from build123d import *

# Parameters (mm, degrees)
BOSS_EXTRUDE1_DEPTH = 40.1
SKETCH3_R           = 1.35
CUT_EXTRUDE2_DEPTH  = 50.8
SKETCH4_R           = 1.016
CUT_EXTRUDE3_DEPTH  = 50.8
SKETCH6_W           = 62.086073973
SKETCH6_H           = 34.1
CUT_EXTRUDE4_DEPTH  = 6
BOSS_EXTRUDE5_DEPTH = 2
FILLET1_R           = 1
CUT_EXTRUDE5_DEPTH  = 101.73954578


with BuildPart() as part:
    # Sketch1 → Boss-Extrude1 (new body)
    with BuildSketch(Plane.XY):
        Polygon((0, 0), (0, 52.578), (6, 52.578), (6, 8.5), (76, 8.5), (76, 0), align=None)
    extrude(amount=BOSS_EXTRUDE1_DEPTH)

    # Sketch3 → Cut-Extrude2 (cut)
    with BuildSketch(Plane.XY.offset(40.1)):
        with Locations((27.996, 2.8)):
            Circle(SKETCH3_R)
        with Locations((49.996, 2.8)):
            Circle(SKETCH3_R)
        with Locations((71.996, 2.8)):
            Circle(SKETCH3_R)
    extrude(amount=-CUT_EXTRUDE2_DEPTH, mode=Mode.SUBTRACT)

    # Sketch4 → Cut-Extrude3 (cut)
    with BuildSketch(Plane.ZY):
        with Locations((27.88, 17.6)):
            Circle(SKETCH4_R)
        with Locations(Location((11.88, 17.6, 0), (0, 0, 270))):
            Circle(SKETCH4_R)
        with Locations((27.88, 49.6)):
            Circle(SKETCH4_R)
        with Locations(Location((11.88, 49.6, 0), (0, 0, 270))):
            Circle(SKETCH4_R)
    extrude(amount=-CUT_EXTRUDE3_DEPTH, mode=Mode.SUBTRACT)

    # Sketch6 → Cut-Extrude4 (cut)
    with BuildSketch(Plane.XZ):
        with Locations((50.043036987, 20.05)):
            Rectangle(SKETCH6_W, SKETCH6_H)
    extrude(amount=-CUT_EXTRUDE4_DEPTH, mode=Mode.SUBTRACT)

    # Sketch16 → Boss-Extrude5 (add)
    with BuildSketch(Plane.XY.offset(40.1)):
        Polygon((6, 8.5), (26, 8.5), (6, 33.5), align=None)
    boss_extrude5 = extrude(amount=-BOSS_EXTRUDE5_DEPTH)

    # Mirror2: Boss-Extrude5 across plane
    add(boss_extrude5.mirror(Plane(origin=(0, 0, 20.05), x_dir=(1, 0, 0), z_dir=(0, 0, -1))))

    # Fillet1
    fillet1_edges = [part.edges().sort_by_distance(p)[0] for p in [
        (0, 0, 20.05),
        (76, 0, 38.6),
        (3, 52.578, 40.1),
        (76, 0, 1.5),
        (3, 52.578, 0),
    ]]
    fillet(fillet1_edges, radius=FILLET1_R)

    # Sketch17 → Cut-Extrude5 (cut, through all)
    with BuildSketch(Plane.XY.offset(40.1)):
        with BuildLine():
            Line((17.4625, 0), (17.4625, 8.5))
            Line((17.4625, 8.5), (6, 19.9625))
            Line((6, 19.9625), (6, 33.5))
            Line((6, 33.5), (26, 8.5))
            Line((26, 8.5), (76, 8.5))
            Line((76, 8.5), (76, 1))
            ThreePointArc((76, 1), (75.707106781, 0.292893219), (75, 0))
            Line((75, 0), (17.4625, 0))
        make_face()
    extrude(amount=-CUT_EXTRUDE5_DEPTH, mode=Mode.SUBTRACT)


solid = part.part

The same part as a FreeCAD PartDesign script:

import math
import FreeCAD as App
import Part
import Sketcher
Q = App.Units.Quantity


def edges_at(feature, points):
    """Names of the edges that pass closest to the given points."""
    edges = feature.Shape.Edges
    near = lambda p: min(range(len(edges)), key=lambda i: edges[i].distToShape(Part.Vertex(*p))[0])
    return sorted({f"Edge{near(p) + 1}" for p in points})


def add_polygon(sketch, points):
    """Adds a closed chain of lines whose ends are joined by coincident constraints."""
    first, n = sketch.GeometryCount, len(points)
    for a, b in zip(points, points[1:] + points[:1]):
        sketch.addGeometry(Part.LineSegment(App.Vector(*a, 0), App.Vector(*b, 0)), False)
    for i in range(n):
        sketch.addConstraint(Sketcher.Constraint("Coincident", first + i, 2, first + (i + 1) % n, 1))

doc = App.newDocument("Part")
body = doc.addObject("PartDesign::Body", "Body")

sketch1 = body.newObject("Sketcher::SketchObject", "Sketch")
sketch1.AttachmentSupport = (doc.getObject("XY_Plane"), [""])
sketch1.MapMode = "FlatFace"
add_polygon(sketch1, [(0, 53), (0, 0), (76, 0), (76, 8), (6, 8), (6, 53)])
sketch1.addConstraint(Sketcher.Constraint("Vertical", 0))
sketch1.addConstraint(Sketcher.Constraint("Horizontal", 1))
sketch1.addConstraint(Sketcher.Constraint("Vertical", 2))
sketch1.addConstraint(Sketcher.Constraint("Horizontal", 3))
sketch1.addConstraint(Sketcher.Constraint("Vertical", 4))
sketch1.addConstraint(Sketcher.Constraint("Horizontal", 5))
sketch1.addConstraint(Sketcher.Constraint("Coincident", 0, 2, -1, 1))
sketch1.addConstraint(Sketcher.Constraint("DistanceX", 1, 1, 1, 2, 76.0))
sketch1.addConstraint(Sketcher.Constraint("DistanceX", 3, 2, 3, 1, 70.0))
sketch1.addConstraint(Sketcher.Constraint("DistanceY", 2, 1, 2, 2, 8.5))
sketch1.addConstraint(Sketcher.Constraint("DistanceY", 0, 2, 0, 1, 52.578))
pad1 = body.newObject("PartDesign::Pad", "Pad")
pad1.Profile = sketch1
pad1.Length = 40.1

sketch2 = body.newObject("Sketcher::SketchObject", "Sketch001")
sketch2.AttachmentSupport = (doc.getObject("XY_Plane"), [""])
sketch2.MapMode = "FlatFace"
sketch2.AttachmentOffset = App.Placement(App.Vector(0, 0, 40.1), App.Rotation())
sketch2.addGeometry(Part.Circle(App.Vector(28, 2.8, 0), App.Vector(0, 0, 1), 1.4), False)
sketch2.addGeometry(Part.Circle(App.Vector(50, 2.8, 0), App.Vector(0, 0, 1), 1.4), False)
sketch2.addGeometry(Part.Circle(App.Vector(72, 2.8, 0), App.Vector(0, 0, 1), 1.4), False)
sketch2.addConstraint(Sketcher.Constraint("Equal", 0, 1))
sketch2.addConstraint(Sketcher.Constraint("Equal", 1, 2))
sketch2.addConstraint(Sketcher.Constraint("Horizontal", 0, 3, 1, 3))
sketch2.addConstraint(Sketcher.Constraint("Horizontal", 1, 3, 2, 3))
sketch2.addConstraint(Sketcher.Constraint("Diameter", 0, 2.7))
sketch2.addConstraint(Sketcher.Constraint("DistanceX", 0, 3, 1, 3, 22.0))
sketch2.addConstraint(Sketcher.Constraint("DistanceX", 1, 3, 2, 3, 22.0))
sketch2.addConstraint(Sketcher.Constraint("DistanceY", -1, 1, 0, 3, 2.8))
sketch2.addConstraint(Sketcher.Constraint("DistanceX", -1, 1, 0, 3, 27.996))
pocket1 = body.newObject("PartDesign::Pocket", "Pocket")
pocket1.Profile = sketch2
pocket1.Length = 50.8

sketch3 = body.newObject("Sketcher::SketchObject", "Sketch002")
sketch3.AttachmentSupport = (doc.getObject("YZ_Plane"), [""])
sketch3.MapMode = "FlatFace"
sketch3.addGeometry(Part.Circle(App.Vector(17.6, 27.9, 0), App.Vector(0, 0, 1), 1), False)
sketch3.addGeometry(Part.Circle(App.Vector(17.6, 11.9, 0), App.Vector(0, 0, 1), 1), False)
sketch3.addGeometry(Part.Circle(App.Vector(49.6, 27.9, 0), App.Vector(0, 0, 1), 1), False)
sketch3.addGeometry(Part.Circle(App.Vector(49.6, 11.9, 0), App.Vector(0, 0, 1), 1), False)
sketch3.addConstraint(Sketcher.Constraint("Equal", 0, 1))
sketch3.addConstraint(Sketcher.Constraint("Equal", 1, 2))
sketch3.addConstraint(Sketcher.Constraint("Equal", 2, 3))
sketch3.addConstraint(Sketcher.Constraint("Horizontal", 0, 3, 2, 3))
sketch3.addConstraint(Sketcher.Constraint("Horizontal", 1, 3, 3, 3))
sketch3.addConstraint(Sketcher.Constraint("Vertical", 0, 3, 1, 3))
sketch3.addConstraint(Sketcher.Constraint("Vertical", 2, 3, 3, 3))
sketch3.addConstraint(Sketcher.Constraint("Diameter", 0, 2.032))
sketch3.addConstraint(Sketcher.Constraint("DistanceY", 1, 3, 0, 3, 16.0))
sketch3.addConstraint(Sketcher.Constraint("DistanceX", 0, 3, 2, 3, 32.0))
sketch3.addConstraint(Sketcher.Constraint("DistanceX", -1, 1, 0, 3, 17.6))
sketch3.addConstraint(Sketcher.Constraint("DistanceY", -1, 1, 0, 3, 27.88))
pocket2 = body.newObject("PartDesign::Pocket", "Pocket001")
pocket2.Profile = sketch3
pocket2.Length = 50.8
pocket2.Reversed = True

sketch4 = body.newObject("Sketcher::SketchObject", "Sketch003")
sketch4.AttachmentSupport = (doc.getObject("XZ_Plane"), [""])
sketch4.MapMode = "FlatFace"
add_polygon(sketch4, [(19, 37), (19, 3), (81, 3), (81, 37)])
sketch4.addConstraint(Sketcher.Constraint("Vertical", 0))
sketch4.addConstraint(Sketcher.Constraint("Horizontal", 1))
sketch4.addConstraint(Sketcher.Constraint("Vertical", 2))
sketch4.addConstraint(Sketcher.Constraint("Horizontal", 3))
sketch4.addConstraint(Sketcher.Constraint("DistanceY", 0, 2, 0, 1, 34.1))
sketch4.addConstraint(Sketcher.Constraint("DistanceX", -1, 1, 0, 2, 19.0))
sketch4.addConstraint(Sketcher.Constraint("DistanceY", -1, 1, 0, 2, 3.0))
sketch4.addConstraint(Sketcher.Constraint("DistanceX", 1, 1, 1, 2, 62.086074))
pocket3 = body.newObject("PartDesign::Pocket", "Pocket002")
pocket3.Profile = sketch4
pocket3.Length = 6

sketch5 = body.newObject("Sketcher::SketchObject", "Sketch004")
sketch5.AttachmentSupport = (doc.getObject("XY_Plane"), [""])
sketch5.MapMode = "FlatFace"
sketch5.AttachmentOffset = App.Placement(App.Vector(0, 0, 40.1), App.Rotation())
add_polygon(sketch5, [(6, 8), (26, 8), (6, 34)])
sketch5.addConstraint(Sketcher.Constraint("Horizontal", 0))
sketch5.addConstraint(Sketcher.Constraint("Vertical", 2))
sketch5.addConstraint(Sketcher.Constraint("DistanceX", 0, 1, 0, 2, 20.0))
sketch5.addConstraint(Sketcher.Constraint("DistanceY", 2, 2, 2, 1, 25.0))
sketch5.addConstraint(Sketcher.Constraint("DistanceX", -1, 1, 0, 2, 26.0))
sketch5.addConstraint(Sketcher.Constraint("DistanceY", -1, 1, 0, 2, 8.5))
pad2 = body.newObject("PartDesign::Pad", "Pad001")
pad2.Profile = sketch5
pad2.Length = 2
pad2.Reversed = True
doc.recompute()

datumplane = body.newObject("PartDesign::Plane", "DatumPlane")
datumplane.AttachmentSupport = (doc.getObject("XY_Plane"), [""])
datumplane.MapMode = "FlatFace"
datumplane.AttachmentOffset = App.Placement(App.Vector(0, 0, 20.05), App.Rotation())
mirrored = body.newObject("PartDesign::Mirrored", "Mirrored")
mirrored.Originals = [pad2]
mirrored.MirrorPlane = (datumplane, [""])
body.Tip = mirrored
doc.recompute()

fillet = body.newObject("PartDesign::Fillet", "Fillet")
fillet.Base = (mirrored, edges_at(mirrored, [
    (0, 0, 20.05),
    (76, 0, 38.6),
    (3, 52.578, 40.1),
    (76, 0, 1.5),
    (3, 52.578, 0),
]))
fillet.Radius = 1

sketch6 = body.newObject("Sketcher::SketchObject", "Sketch005")
sketch6.AttachmentSupport = (doc.getObject("XY_Plane"), [""])
sketch6.MapMode = "FlatFace"
sketch6.AttachmentOffset = App.Placement(App.Vector(0, 0, 40.1), App.Rotation())
sketch6.addGeometry(Part.LineSegment(App.Vector(17.5, 8.5, 0), App.Vector(17.5, 0, 0)), False)
sketch6.addGeometry(Part.LineSegment(App.Vector(17.5, 0, 0), App.Vector(75, 0, 0)), False)
sketch6.addGeometry(Part.ArcOfCircle(Part.Circle(App.Vector(75, 1, 0), App.Vector(0, 0, 1), 1), math.radians(-90), math.radians(0)), False)
sketch6.addGeometry(Part.LineSegment(App.Vector(76, 1, 0), App.Vector(76, 8.5, 0)), False)
sketch6.addGeometry(Part.LineSegment(App.Vector(76, 8.5, 0), App.Vector(26, 8.5, 0)), False)
sketch6.addGeometry(Part.LineSegment(App.Vector(26, 8.5, 0), App.Vector(6, 33.5, 0)), False)
sketch6.addGeometry(Part.LineSegment(App.Vector(6, 33.5, 0), App.Vector(6, 20, 0)), False)
sketch6.addGeometry(Part.LineSegment(App.Vector(6, 20, 0), App.Vector(17.5, 8.5, 0)), False)
sketch6.addConstraint(Sketcher.Constraint("Coincident", 0, 2, 1, 1))
sketch6.addConstraint(Sketcher.Constraint("Tangent", 1, 2, 2, 1))
sketch6.addConstraint(Sketcher.Constraint("Tangent", 2, 2, 3, 1))
sketch6.addConstraint(Sketcher.Constraint("Coincident", 3, 2, 4, 1))
sketch6.addConstraint(Sketcher.Constraint("Coincident", 4, 2, 5, 1))
sketch6.addConstraint(Sketcher.Constraint("Coincident", 5, 2, 6, 1))
sketch6.addConstraint(Sketcher.Constraint("Coincident", 6, 2, 7, 1))
sketch6.addConstraint(Sketcher.Constraint("Coincident", 7, 2, 0, 1))
sketch6.addConstraint(Sketcher.Constraint("Vertical", 0))
sketch6.addConstraint(Sketcher.Constraint("Horizontal", 1))
sketch6.addConstraint(Sketcher.Constraint("Vertical", 3))
sketch6.addConstraint(Sketcher.Constraint("Horizontal", 4))
sketch6.addConstraint(Sketcher.Constraint("Vertical", 6))
sketch6.addConstraint(Sketcher.Constraint("PointOnObject", 0, 2, -1))
sketch6.addConstraint(Sketcher.Constraint("Horizontal", 4, 2, 7, 2))
sketch6.addConstraint(Sketcher.Constraint("Radius", 2, 1.0))
sketch6.addConstraint(Sketcher.Constraint("DistanceX", 4, 2, 4, 1, 50.0))
sketch6.addConstraint(Sketcher.Constraint("Angle", 7, Q("-45 deg")))
sketch6.addConstraint(Sketcher.Constraint("DistanceY", 0, 2, 0, 1, 8.5))
sketch6.addConstraint(Sketcher.Constraint("DistanceX", -1, 1, 2, 3, 75.0))
sketch6.addConstraint(Sketcher.Constraint("DistanceX", -1, 1, 5, 2, 6.0))
sketch6.addConstraint(Sketcher.Constraint("DistanceY", 4, 2, 5, 2, 25.0))
sketch6.addConstraint(Sketcher.Constraint("DistanceX", 1, 1, 1, 2, 57.5375))
pocket4 = body.newObject("PartDesign::Pocket", "Pocket003")
pocket4.Profile = sketch6
pocket4.Type = "ThroughAll"

doc.recompute()
